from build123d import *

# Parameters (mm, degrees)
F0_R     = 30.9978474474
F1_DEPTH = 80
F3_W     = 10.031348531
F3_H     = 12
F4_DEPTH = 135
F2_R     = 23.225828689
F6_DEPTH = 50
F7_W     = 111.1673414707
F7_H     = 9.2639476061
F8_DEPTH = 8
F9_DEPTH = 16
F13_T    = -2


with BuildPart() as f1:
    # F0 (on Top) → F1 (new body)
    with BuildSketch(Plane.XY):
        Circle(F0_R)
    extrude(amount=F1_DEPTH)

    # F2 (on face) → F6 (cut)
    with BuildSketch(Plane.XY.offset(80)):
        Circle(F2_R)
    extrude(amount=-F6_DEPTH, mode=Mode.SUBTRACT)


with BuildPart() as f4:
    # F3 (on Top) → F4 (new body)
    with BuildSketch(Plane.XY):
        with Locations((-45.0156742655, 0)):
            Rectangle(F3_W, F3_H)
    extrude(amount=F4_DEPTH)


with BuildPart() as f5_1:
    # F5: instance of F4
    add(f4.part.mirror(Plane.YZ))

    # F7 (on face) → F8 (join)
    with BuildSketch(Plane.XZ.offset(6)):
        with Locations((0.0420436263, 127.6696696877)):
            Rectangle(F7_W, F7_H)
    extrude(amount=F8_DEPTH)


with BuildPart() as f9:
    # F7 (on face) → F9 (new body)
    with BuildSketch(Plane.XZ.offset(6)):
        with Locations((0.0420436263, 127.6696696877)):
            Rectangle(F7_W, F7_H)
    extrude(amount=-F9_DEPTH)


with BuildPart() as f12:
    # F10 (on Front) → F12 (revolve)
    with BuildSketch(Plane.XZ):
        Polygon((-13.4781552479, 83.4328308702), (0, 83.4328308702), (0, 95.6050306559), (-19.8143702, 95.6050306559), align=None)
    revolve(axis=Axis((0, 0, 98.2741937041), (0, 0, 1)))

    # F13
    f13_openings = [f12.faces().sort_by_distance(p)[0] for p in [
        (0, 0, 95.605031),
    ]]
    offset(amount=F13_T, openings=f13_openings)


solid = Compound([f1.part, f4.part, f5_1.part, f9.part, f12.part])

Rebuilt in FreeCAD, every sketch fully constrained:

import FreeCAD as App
import Part
import Sketcher
Q = App.Units.Quantity


def faces_at(feature, points):
    """Names of the faces that lie closest to the given points."""
    faces = feature.Shape.Faces
    near = lambda p: min(range(len(faces)), key=lambda i: faces[i].distToShape(Part.Vertex(*p))[0])
    return sorted({f"Face{near(p) + 1}" for p in points})


def add_polygon(sketch, points):
    """Adds a closed chain of lines whose ends are joined by coincident constraints."""
    first, n = sketch.GeometryCount, len(points)
    for a, b in zip(points, points[1:] + points[:1]):
        sketch.addGeometry(Part.LineSegment(App.Vector(*a, 0), App.Vector(*b, 0)), False)
    for i in range(n):
        sketch.addConstraint(Sketcher.Constraint("Coincident", first + i, 2, first + (i + 1) % n, 1))

doc = App.newDocument("Part")
body = doc.addObject("PartDesign::Body", "Body")

# Sketch on XY plane
sketch1 = doc.addObject("Sketcher::SketchObject", "Sketch")
body.addObject(sketch1)
sketch1.AttachmentSupport = (doc.XY_Plane, [""])
sketch1.MapMode = "FlatFace"
sketch1.addGeometry(Part.Circle(App.Vector(0, 0, 0), App.Vector(0, 0, 1), 31), False)
sketch1.addConstraint([
    Sketcher.Constraint("Coincident", 0, 3, -1, 1),
    Sketcher.Constraint("Diameter", 0, Q("61.995695 mm")),
])
pad1 = doc.addObject("PartDesign::Pad", "Pad")
body.addObject(pad1)
pad1.Profile = sketch1
pad1.Length = 80

# Sketch on XY plane
sketch2 = doc.addObject("Sketcher::SketchObject", "Sketch001")
body.addObject(sketch2)
sketch2.AttachmentSupport = (doc.XY_Plane, [""])
sketch2.MapMode = "FlatFace"
sketch2.AttachmentOffset = App.Placement(App.Vector(0, 0, 80), App.Rotation())
sketch2.addGeometry(Part.Circle(App.Vector(0, 0, 0), App.Vector(0, 0, 1), 23), False)
sketch2.addConstraint([
    Sketcher.Constraint("Coincident", 0, 3, -1, 1),
    Sketcher.Constraint("Diameter", 0, Q("46.451657 mm")),
])
pocket1 = doc.addObject("PartDesign::Pocket", "Pocket")
body.addObject(pocket1)
pocket1.Profile = sketch2
pocket1.Length = 50
body2 = doc.addObject("PartDesign::Body", "Body001")

# Sketch on XY plane
sketch3 = doc.addObject("Sketcher::SketchObject", "Sketch002")
body2.addObject(sketch3)
sketch3.AttachmentSupport = (doc.getObject("XY_Plane001"), [""])
sketch3.MapMode = "FlatFace"
add_polygon(sketch3, [(-50, 6), (-50, -6), (-40, -6), (-40, 6)])  # lines 0-3
sketch3.addConstraint([
    Sketcher.Constraint("Vertical", 0),
    Sketcher.Constraint("Horizontal", 1),
    Sketcher.Constraint("Vertical", 2),
    Sketcher.Constraint("Horizontal", 3),
    Sketcher.Constraint("DistanceY", 0, 2, 0, 1, Q("12 mm")),
    Sketcher.Constraint("DistanceY", 0, 2, -1, 1, Q("6 mm")),
    Sketcher.Constraint("DistanceX", 1, 2, -1, 1, Q("40 mm")),
    Sketcher.Constraint("DistanceX", 1, 1, 1, 2, Q("10.031349 mm")),
])
pad2 = doc.addObject("PartDesign::Pad", "Pad001")
body2.addObject(pad2)
pad2.Profile = sketch3
pad2.Length = 135
body3 = doc.addObject("PartDesign::Body", "Body002")
doc.recompute()

mirroring = doc.addObject("Part::Mirroring", "Mirroring")
mirroring.Source = body2
mirroring.Base = App.Vector(0, 0, 0)
mirroring.Normal = App.Vector(1, 0, 0)
body3.BaseFeature = mirroring
doc.recompute()

# Sketch on XZ plane
sketch4 = doc.addObject("Sketcher::SketchObject", "Sketch003")
body3.addObject(sketch4)
sketch4.AttachmentSupport = (doc.getObject("XZ_Plane002"), [""])
sketch4.MapMode = "FlatFace"
sketch4.AttachmentOffset = App.Placement(App.Vector(0, 0, 6), App.Rotation())
add_polygon(sketch4, [(-56, 132), (-56, 123), (56, 123), (56, 132)])  # lines 0-3
sketch4.addConstraint([
    Sketcher.Constraint("Vertical", 0),
    Sketcher.Constraint("Horizontal", 1),
    Sketcher.Constraint("Vertical", 2),
    Sketcher.Constraint("Horizontal", 3),
    Sketcher.Constraint("DistanceX", 1, 1, 1, 2, Q("111.167341 mm")),
    Sketcher.Constraint("DistanceY", 0, 2, 0, 1, Q("9.263948 mm")),
    Sketcher.Constraint("DistanceX", 0, 2, -1, 1, Q("55.541627 mm")),
    Sketcher.Constraint("DistanceY", -1, 1, 0, 2, Q("123.037696 mm")),
])
pad3 = doc.addObject("PartDesign::Pad", "Pad002")
body3.addObject(pad3)
pad3.Profile = sketch4
pad3.Length = 8
body4 = doc.addObject("PartDesign::Body", "Body003")

# Sketch on XZ plane
sketch5 = doc.addObject("Sketcher::SketchObject", "Sketch004")
body4.addObject(sketch5)
sketch5.AttachmentSupport = (doc.getObject("XZ_Plane003"), [""])
sketch5.MapMode = "FlatFace"
sketch5.AttachmentOffset = App.Placement(App.Vector(0, 0, 6), App.Rotation())
add_polygon(sketch5, [(-56, 132), (-56, 123), (56, 123), (56, 132)])  # lines 0-3
sketch5.addConstraint([
    Sketcher.Constraint("Vertical", 0),
    Sketcher.Constraint("Horizontal", 1),
    Sketcher.Constraint("Vertical", 2),
    Sketcher.Constraint("Horizontal", 3),
    Sketcher.Constraint("DistanceX", 1, 1, 1, 2, Q("111.167341 mm")),
    Sketcher.Constraint("DistanceY", 0, 2, 0, 1, Q("9.263948 mm")),
    Sketcher.Constraint("DistanceX", 0, 2, -1, 1, Q("55.541627 mm")),
    Sketcher.Constraint("DistanceY", -1, 1, 0, 2, Q("123.037696 mm")),
])
pad4 = doc.addObject("PartDesign::Pad", "Pad003")
body4.addObject(pad4)
pad4.Profile = sketch5
pad4.Length = 16
pad4.Reversed = True
body5 = doc.addObject("PartDesign::Body", "Body004")

# Sketch on XZ plane
sketch6 = doc.addObject("Sketcher::SketchObject", "Sketch005")
body5.addObject(sketch6)
sketch6.AttachmentSupport = (doc.getObject("XZ_Plane004"), [""])
sketch6.MapMode = "FlatFace"
add_polygon(sketch6, [(-13, 83), (0, 83), (0, 96), (-20, 96)])  # lines 0-3
sketch6.addConstraint([
    Sketcher.Constraint("Horizontal", 0),
    Sketcher.Constraint("Vertical", 1),
    Sketcher.Constraint("Horizontal", 2),
    Sketcher.Constraint("PointOnObject", 0, 2, -2),
    Sketcher.Constraint("DistanceY", 1, 1, 1, 2, Q("12.1722 mm")),
    Sketcher.Constraint("DistanceX", 2, 2, 2, 1, Q("19.81437 mm")),
    Sketcher.Constraint("Distance", 3, Q("13.722612 mm")),
    Sketcher.Constraint("DistanceY", -1, 1, 0, 2, Q("83.432831 mm")),
])
revolution = doc.addObject("PartDesign::Revolution", "Revolution")
body5.addObject(revolution)
revolution.Profile = sketch6
revolution.ReferenceAxis = (sketch6, ["V_Axis"])
revolution.Angle = 360
doc.recompute()

thickness = doc.addObject("PartDesign::Thickness", "Thickness")
body5.addObject(thickness)
thickness.Base = (revolution, faces_at(revolution, [(0, 0, 95.605)]))
thickness.Value = 2
thickness.Reversed = True
thickness.Join = "Arc"
mirroring.Visibility = False

doc.recompute()
